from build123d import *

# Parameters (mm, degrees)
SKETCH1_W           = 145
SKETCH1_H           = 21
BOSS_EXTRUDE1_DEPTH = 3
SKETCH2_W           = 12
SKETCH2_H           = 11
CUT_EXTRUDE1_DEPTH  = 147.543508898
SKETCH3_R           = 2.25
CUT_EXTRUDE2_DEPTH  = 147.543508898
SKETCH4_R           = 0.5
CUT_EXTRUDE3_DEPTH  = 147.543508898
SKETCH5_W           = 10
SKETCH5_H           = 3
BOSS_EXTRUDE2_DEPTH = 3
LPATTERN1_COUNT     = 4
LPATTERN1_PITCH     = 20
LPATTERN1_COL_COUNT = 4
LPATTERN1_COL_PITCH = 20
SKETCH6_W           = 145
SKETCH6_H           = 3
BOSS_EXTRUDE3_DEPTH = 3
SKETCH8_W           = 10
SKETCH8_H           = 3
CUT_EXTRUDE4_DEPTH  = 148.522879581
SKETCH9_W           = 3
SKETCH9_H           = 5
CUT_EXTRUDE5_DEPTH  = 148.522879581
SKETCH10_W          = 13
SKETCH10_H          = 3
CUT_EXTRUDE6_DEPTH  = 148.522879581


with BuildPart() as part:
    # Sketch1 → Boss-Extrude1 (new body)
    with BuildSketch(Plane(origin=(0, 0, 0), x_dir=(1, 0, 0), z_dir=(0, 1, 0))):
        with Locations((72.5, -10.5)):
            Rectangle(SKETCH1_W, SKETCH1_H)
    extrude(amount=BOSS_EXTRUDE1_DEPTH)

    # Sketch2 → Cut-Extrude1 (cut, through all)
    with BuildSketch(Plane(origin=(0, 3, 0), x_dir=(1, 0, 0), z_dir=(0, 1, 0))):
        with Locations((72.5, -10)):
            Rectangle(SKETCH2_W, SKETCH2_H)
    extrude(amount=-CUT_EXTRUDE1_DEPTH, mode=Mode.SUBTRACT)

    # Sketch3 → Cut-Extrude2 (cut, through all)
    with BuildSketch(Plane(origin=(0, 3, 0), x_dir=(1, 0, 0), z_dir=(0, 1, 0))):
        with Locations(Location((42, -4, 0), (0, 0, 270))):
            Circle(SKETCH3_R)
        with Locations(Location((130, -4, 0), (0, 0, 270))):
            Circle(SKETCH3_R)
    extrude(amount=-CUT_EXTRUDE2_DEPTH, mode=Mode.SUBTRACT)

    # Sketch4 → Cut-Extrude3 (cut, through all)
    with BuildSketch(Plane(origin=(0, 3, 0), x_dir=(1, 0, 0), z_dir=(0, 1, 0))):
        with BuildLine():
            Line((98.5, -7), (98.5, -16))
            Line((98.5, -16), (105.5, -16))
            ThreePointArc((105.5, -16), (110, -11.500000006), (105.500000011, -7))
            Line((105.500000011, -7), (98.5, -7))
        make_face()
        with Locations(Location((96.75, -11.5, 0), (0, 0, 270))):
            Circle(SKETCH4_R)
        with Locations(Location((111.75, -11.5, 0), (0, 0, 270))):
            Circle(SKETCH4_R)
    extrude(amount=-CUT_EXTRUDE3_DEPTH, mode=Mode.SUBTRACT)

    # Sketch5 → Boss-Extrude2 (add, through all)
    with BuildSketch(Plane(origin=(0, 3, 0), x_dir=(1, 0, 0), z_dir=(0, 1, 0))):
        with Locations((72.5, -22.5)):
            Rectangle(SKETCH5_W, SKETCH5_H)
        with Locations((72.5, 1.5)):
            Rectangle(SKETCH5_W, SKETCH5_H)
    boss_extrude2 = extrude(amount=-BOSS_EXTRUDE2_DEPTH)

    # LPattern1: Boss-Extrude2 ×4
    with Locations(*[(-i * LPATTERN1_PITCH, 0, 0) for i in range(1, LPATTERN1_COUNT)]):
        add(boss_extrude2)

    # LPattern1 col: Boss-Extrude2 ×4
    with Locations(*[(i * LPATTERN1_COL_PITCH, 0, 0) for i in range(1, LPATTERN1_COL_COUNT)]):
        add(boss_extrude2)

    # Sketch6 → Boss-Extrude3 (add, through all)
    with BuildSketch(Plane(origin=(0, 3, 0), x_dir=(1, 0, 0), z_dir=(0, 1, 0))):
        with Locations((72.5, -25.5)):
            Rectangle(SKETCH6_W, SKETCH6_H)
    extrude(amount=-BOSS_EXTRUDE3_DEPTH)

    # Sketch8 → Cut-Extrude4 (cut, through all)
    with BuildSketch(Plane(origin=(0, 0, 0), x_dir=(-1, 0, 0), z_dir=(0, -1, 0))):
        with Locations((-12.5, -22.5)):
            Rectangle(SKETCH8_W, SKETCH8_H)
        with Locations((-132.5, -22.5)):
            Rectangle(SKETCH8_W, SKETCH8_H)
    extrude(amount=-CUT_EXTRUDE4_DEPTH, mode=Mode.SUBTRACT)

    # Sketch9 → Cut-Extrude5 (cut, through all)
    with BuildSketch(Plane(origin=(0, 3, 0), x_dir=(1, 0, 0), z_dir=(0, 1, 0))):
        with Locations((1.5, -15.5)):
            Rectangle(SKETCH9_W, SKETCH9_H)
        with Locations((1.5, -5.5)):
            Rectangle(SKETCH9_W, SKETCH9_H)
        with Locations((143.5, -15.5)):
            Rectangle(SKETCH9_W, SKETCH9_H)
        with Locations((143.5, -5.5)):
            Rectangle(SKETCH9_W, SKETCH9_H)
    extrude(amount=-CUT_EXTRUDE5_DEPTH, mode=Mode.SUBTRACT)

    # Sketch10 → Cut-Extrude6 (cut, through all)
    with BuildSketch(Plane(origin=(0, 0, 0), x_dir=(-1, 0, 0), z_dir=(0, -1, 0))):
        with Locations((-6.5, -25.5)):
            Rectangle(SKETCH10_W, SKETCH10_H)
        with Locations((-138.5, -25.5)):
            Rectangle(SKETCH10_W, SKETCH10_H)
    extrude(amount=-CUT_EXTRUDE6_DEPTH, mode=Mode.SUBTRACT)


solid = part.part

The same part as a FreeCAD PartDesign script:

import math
import FreeCAD as App
import Part
import Sketcher
from FreeCAD import Vector
Q = App.Units.Quantity

doc = App.newDocument("Part")
body = doc.addObject("PartDesign::Body", "Body")

# Sketch on XZ plane
sketch1 = body.newObject("Sketcher::SketchObject", "Sketch")
sketch1.AttachmentSupport = (doc.getObject("XZ_Plane"), [""])
sketch1.MapMode = "FlatFace"
sketch1.addGeometry([
    Part.LineSegment(Vector(0, 0, 0), Vector(0, 21, 0)),
    Part.LineSegment(Vector(0, 21, 0), Vector(145, 21, 0)),
    Part.LineSegment(Vector(145, 21, 0), Vector(145, 0, 0)),
    Part.LineSegment(Vector(145, 0, 0), Vector(0, 0, 0)),
], False)
sketch1.addConstraint([
    Sketcher.Constraint("Coincident", 0, 2, 1, 1),
    Sketcher.Constraint("Coincident", 1, 2, 2, 1),
    Sketcher.Constraint("Coincident", 2, 2, 3, 1),
    Sketcher.Constraint("Coincident", 3, 2, 0, 1),
    Sketcher.Constraint("Vertical", 0),
    Sketcher.Constraint("Horizontal", 1),
    Sketcher.Constraint("Vertical", 2),
    Sketcher.Constraint("Horizontal", 3),
    Sketcher.Constraint("Coincident", 3, 2, -1, 1),
    Sketcher.Constraint("DistanceX", 1, 1, 1, 2, Q("145 mm")),
    Sketcher.Constraint("DistanceY", 0, 1, 0, 2, Q("21 mm")),
])
pad1 = body.newObject("PartDesign::Pad", "Pad")
pad1.Profile = sketch1
pad1.Length = 3
pad1.Reversed = True

# Sketch on XZ plane
sketch2 = body.newObject("Sketcher::SketchObject", "Sketch001")
sketch2.AttachmentSupport = (doc.getObject("XZ_Plane"), [""])
sketch2.MapMode = "FlatFace"
sketch2.AttachmentOffset = App.Placement(Vector(0, 0, -3), App.Rotation())
sketch2.addGeometry([
    Part.LineSegment(Vector(66, 4, 0), Vector(66, 16, 0)),
    Part.LineSegment(Vector(66, 16, 0), Vector(78, 16, 0)),
    Part.LineSegment(Vector(78, 16, 0), Vector(78, 4, 0)),
    Part.LineSegment(Vector(78, 4, 0), Vector(66, 4, 0)),
], False)
sketch2.addConstraint([
    Sketcher.Constraint("Coincident", 0, 2, 1, 1),
    Sketcher.Constraint("Coincident", 1, 2, 2, 1),
    Sketcher.Constraint("Coincident", 2, 2, 3, 1),
    Sketcher.Constraint("Coincident", 3, 2, 0, 1),
    Sketcher.Constraint("Vertical", 0),
    Sketcher.Constraint("Horizontal", 1),
    Sketcher.Constraint("Vertical", 2),
    Sketcher.Constraint("Horizontal", 3),
    Sketcher.Constraint("DistanceX", 1, 1, 1, 2, Q("12 mm")),
    Sketcher.Constraint("DistanceY", 0, 1, 0, 2, Q("11 mm")),
    Sketcher.Constraint("DistanceX", -1, 1, 0, 2, Q("66.5 mm")),
    Sketcher.Constraint("DistanceY", -1, 1, 0, 2, Q("15.5 mm")),
])
pocket1 = body.newObject("PartDesign::Pocket", "Pocket")
pocket1.Profile = sketch2
pocket1.Type = "ThroughAll"
pocket1.Reversed = True

# Sketch on XZ plane
sketch3 = body.newObject("Sketcher::SketchObject", "Sketch002")
sketch3.AttachmentSupport = (doc.getObject("XZ_Plane"), [""])
sketch3.MapMode = "FlatFace"
sketch3.AttachmentOffset = App.Placement(Vector(0, 0, -3), App.Rotation())
sketch3.addGeometry([
    Part.Circle(Vector(42, 4, 0), Vector(0, 0, 1), 2.2),
    Part.Circle(Vector(130, 4, 0), Vector(0, 0, 1), 2.2),
], False)
sketch3.addConstraint([
    Sketcher.Constraint("Equal", 0, 1),
    Sketcher.Constraint("Horizontal", 0, 3, 1, 3),
    Sketcher.Constraint("Diameter", 0, Q("4.5 mm")),
    Sketcher.Constraint("DistanceX", -1, 1, 0, 3, Q("42 mm")),
    Sketcher.Constraint("DistanceY", -1, 1, 0, 3, Q("4 mm")),
    Sketcher.Constraint("DistanceX", -1, 1, 1, 3, Q("130 mm")),
])
pocket2 = body.newObject("PartDesign::Pocket", "Pocket001")
pocket2.Profile = sketch3
pocket2.Type = "ThroughAll"
pocket2.Reversed = True

# Sketch on XZ plane
sketch4 = body.newObject("Sketcher::SketchObject", "Sketch003")
sketch4.AttachmentSupport = (doc.getObject("XZ_Plane"), [""])
sketch4.MapMode = "FlatFace"
sketch4.AttachmentOffset = App.Placement(Vector(0, 0, -3), App.Rotation())
sketch4.addGeometry([
    Part.LineSegment(Vector(98.5, 7, 0), Vector(98.5, 16, 0)),  # 0
    Part.LineSegment(Vector(98.5, 16, 0), Vector(105.5, 16, 0)),  # 1
    Part.ArcOfCircle(Part.Circle(Vector(105.5, 11.5, 0), Vector(0, 0, 1), 4.5), math.radians(-90), math.radians(90)),  # 2
    Part.LineSegment(Vector(105.5, 7, 0), Vector(98.5, 7, 0)),  # 3
    Part.Circle(Vector(96.8, 11.5, 0), Vector(0, 0, 1), 0.5),  # 4
    Part.Circle(Vector(111.8, 11.5, 0), Vector(0, 0, 1), 0.5),  # 5
], False)
sketch4.addConstraint([
    Sketcher.Constraint("Coincident", 0, 2, 1, 1),
    Sketcher.Constraint("Tangent", 1, 2, 2, 2),
    Sketcher.Constraint("Tangent", 2, 1, 3, 1),
    Sketcher.Constraint("Coincident", 3, 2, 0, 1),
    Sketcher.Constraint("Vertical", 0),
    Sketcher.Constraint("Horizontal", 1),
    Sketcher.Constraint("Horizontal", 3),
    Sketcher.Constraint("Equal", 4, 5),
    Sketcher.Constraint("Horizontal", 2, 3, 4, 3),
    Sketcher.Constraint("Horizontal", 4, 3, 5, 3),
    Sketcher.Constraint("Diameter", 4, Q("1 mm")),
    Sketcher.Constraint("Radius", 2, Q("4.5 mm")),
    Sketcher.Constraint("DistanceX", 1, 1, 1, 2, Q("7 mm")),
    Sketcher.Constraint("DistanceY", -1, 1, 0, 2, Q("16 mm")),
    Sketcher.Constraint("DistanceX", 4, 3, 5, 3, Q("15 mm")),
    Sketcher.Constraint("DistanceX", -1, 1, 2, 3, Q("105.5 mm")),
    Sketcher.Constraint("DistanceX", -1, 1, 4, 3, Q("96.75 mm")),
])
pocket3 = body.newObject("PartDesign::Pocket", "Pocket002")
pocket3.Profile = sketch4
pocket3.Type = "ThroughAll"
pocket3.Reversed = True

# Sketch on XZ plane
sketch5 = body.newObject("Sketcher::SketchObject", "Sketch004")
sketch5.AttachmentSupport = (doc.getObject("XZ_Plane"), [""])
sketch5.MapMode = "FlatFace"
sketch5.AttachmentOffset = App.Placement(Vector(0, 0, -3), App.Rotation())
sketch5.addGeometry([
    Part.LineSegment(Vector(67.5, 21, 0), Vector(67.5, 24, 0)),  # 0
    Part.LineSegment(Vector(67.5, 24, 0), Vector(77.5, 24, 0)),  # 1
    Part.LineSegment(Vector(77.5, 24, 0), Vector(77.5, 21, 0)),  # 2
    Part.LineSegment(Vector(77.5, 21, 0), Vector(67.5, 21, 0)),  # 3
    Part.LineSegment(Vector(67.5, -3, 0), Vector(67.5, 0, 0)),  # 4
    Part.LineSegment(Vector(67.5, 0, 0), Vector(77.5, 0, 0)),  # 5
    Part.LineSegment(Vector(77.5, 0, 0), Vector(77.5, -3, 0)),  # 6
    Part.LineSegment(Vector(77.5, -3, 0), Vector(67.5, -3, 0)),  # 7
], False)
sketch5.addConstraint([
    Sketcher.Constraint("Coincident", 0, 2, 1, 1),
    Sketcher.Constraint("Coincident", 1, 2, 2, 1),
    Sketcher.Constraint("Coincident", 2, 2, 3, 1),
    Sketcher.Constraint("Coincident", 3, 2, 0, 1),
    Sketcher.Constraint("Coincident", 4, 2, 5, 1),
    Sketcher.Constraint("Coincident", 5, 2, 6, 1),
    Sketcher.Constraint("Coincident", 6, 2, 7, 1),
    Sketcher.Constraint("Coincident", 7, 2, 4, 1),
    Sketcher.Constraint("Vertical", 0),
    Sketcher.Constraint("Horizontal", 1),
    Sketcher.Constraint("Vertical", 2),
    Sketcher.Constraint("Horizontal", 3),
    Sketcher.Constraint("Vertical", 4),
    Sketcher.Constraint("Horizontal", 5),
    Sketcher.Constraint("Vertical", 6),
    Sketcher.Constraint("Horizontal", 7),
    Sketcher.Constraint("PointOnObject", 4, 2, -1),
    Sketcher.Constraint("Vertical", 3, 2, 4, 2),
    Sketcher.Constraint("Vertical", 2, 2, 5, 2),
    Sketcher.Constraint("Equal", 2, 4),
    Sketcher.Constraint("DistanceX", 1, 1, 1, 2, Q("10 mm")),
    Sketcher.Constraint("DistanceY", 0, 1, 0, 2, Q("3 mm")),
    Sketcher.Constraint("DistanceY", -1, 1, 0, 2, Q("24 mm")),
    Sketcher.Constraint("DistanceX", -1, 1, 0, 2, Q("67.5 mm")),
])
pad2 = body.newObject("PartDesign::Pad", "Pad001")
pad2.Profile = sketch5
pad2.Length = 3
doc.recompute()

linearpattern = body.newObject("PartDesign::LinearPattern", "LinearPattern")
linearpattern.Originals = [pad2]
linearpattern.Direction = (doc.getObject("X_Axis"), [""])
linearpattern.Mode = "offset"
linearpattern.Offset = 20
linearpattern.Occurrences = 4
linearpattern.Reversed = True
body.Tip = linearpattern
doc.recompute()

linearpattern2 = body.newObject("PartDesign::LinearPattern", "LinearPattern001")
linearpattern2.Originals = [pad2]
linearpattern2.Direction = (doc.getObject("X_Axis"), [""])
linearpattern2.Mode = "offset"
linearpattern2.Offset = 20
linearpattern2.Occurrences = 4
body.Tip = linearpattern2

# Sketch on XZ plane
sketch6 = body.newObject("Sketcher::SketchObject", "Sketch005")
sketch6.AttachmentSupport = (doc.getObject("XZ_Plane"), [""])
sketch6.MapMode = "FlatFace"
sketch6.AttachmentOffset = App.Placement(Vector(0, 0, -3), App.Rotation())
sketch6.addGeometry([
    Part.LineSegment(Vector(0, 24, 0), Vector(0, 27, 0)),
    Part.LineSegment(Vector(0, 27, 0), Vector(145, 27, 0)),
    Part.LineSegment(Vector(145, 27, 0), Vector(145, 24, 0)),
    Part.LineSegment(Vector(145, 24, 0), Vector(0, 24, 0)),
], False)
sketch6.addConstraint([
    Sketcher.Constraint("Coincident", 0, 2, 1, 1),
    Sketcher.Constraint("Coincident", 1, 2, 2, 1),
    Sketcher.Constraint("Coincident", 2, 2, 3, 1),
    Sketcher.Constraint("Coincident", 3, 2, 0, 1),
    Sketcher.Constraint("Vertical", 0),
    Sketcher.Constraint("Horizontal", 1),
    Sketcher.Constraint("Vertical", 2),
    Sketcher.Constraint("Horizontal", 3),
    Sketcher.Constraint("PointOnObject", 0, 2, -2),
    Sketcher.Constraint("DistanceX", 1, 1, 1, 2, Q("145 mm")),
    Sketcher.Constraint("DistanceY", 0, 1, 0, 2, Q("3 mm")),
    Sketcher.Constraint("DistanceY", -1, 1, 0, 2, Q("27 mm")),
])
pad3 = body.newObject("PartDesign::Pad", "Pad002")
pad3.Profile = sketch6
pad3.Length = 3

# Sketch on XZ plane
sketch7 = body.newObject("Sketcher::SketchObject", "Sketch006")
sketch7.AttachmentSupport = (doc.getObject("XZ_Plane"), [""])
sketch7.MapMode = "FlatFace"
sketch7.addGeometry([
    Part.LineSegment(Vector(17.5, 21, 0), Vector(17.5, 24, 0)),  # 0
    Part.LineSegment(Vector(17.5, 24, 0), Vector(7.5, 24, 0)),  # 1
    Part.LineSegment(Vector(7.5, 24, 0), Vector(7.5, 21, 0)),  # 2
    Part.LineSegment(Vector(7.5, 21, 0), Vector(17.5, 21, 0)),  # 3
    Part.LineSegment(Vector(137.5, 21, 0), Vector(137.5, 24, 0)),  # 4
    Part.LineSegment(Vector(137.5, 24, 0), Vector(127.5, 24, 0)),  # 5
    Part.LineSegment(Vector(127.5, 24, 0), Vector(127.5, 21, 0)),  # 6
    Part.LineSegment(Vector(127.5, 21, 0), Vector(137.5, 21, 0)),  # 7
], False)
sketch7.addConstraint([
    Sketcher.Constraint("Coincident", 0, 2, 1, 1),
    Sketcher.Constraint("Coincident", 1, 2, 2, 1),
    Sketcher.Constraint("Coincident", 2, 2, 3, 1),
    Sketcher.Constraint("Coincident", 3, 2, 0, 1),
    Sketcher.Constraint("Coincident", 4, 2, 5, 1),
    Sketcher.Constraint("Coincident", 5, 2, 6, 1),
    Sketcher.Constraint("Coincident", 6, 2, 7, 1),
    Sketcher.Constraint("Coincident", 7, 2, 4, 1),
    Sketcher.Constraint("Vertical", 0),
    Sketcher.Constraint("Horizontal", 1),
    Sketcher.Constraint("Vertical", 2),
    Sketcher.Constraint("Horizontal", 3),
    Sketcher.Constraint("Vertical", 4),
    Sketcher.Constraint("Horizontal", 5),
    Sketcher.Constraint("Vertical", 6),
    Sketcher.Constraint("Horizontal", 7),
    Sketcher.Constraint("Horizontal", 1, 2, 4, 2),
    Sketcher.Constraint("Horizontal", 3, 2, 6, 2),
    Sketcher.Constraint("Equal", 3, 5),
    Sketcher.Constraint("DistanceX", 1, 2, 1, 1, Q("10 mm")),
    Sketcher.Constraint("DistanceY", 0, 1, 0, 2, Q("3 mm")),
    Sketcher.Constraint("DistanceY", -1, 1, 0, 2, Q("24 mm")),
    Sketcher.Constraint("DistanceX", 0, 2, 4, 2, Q("120 mm")),
    Sketcher.Constraint("DistanceX", -1, 1, 0, 2, Q("17.5 mm")),
])
pocket4 = body.newObject("PartDesign::Pocket", "Pocket003")
pocket4.Profile = sketch7
pocket4.Type = "ThroughAll"

# Sketch on XZ plane
sketch8 = body.newObject("Sketcher::SketchObject", "Sketch007")
sketch8.AttachmentSupport = (doc.getObject("XZ_Plane"), [""])
sketch8.MapMode = "FlatFace"
sketch8.AttachmentOffset = App.Placement(Vector(0, 0, -3), App.Rotation())
sketch8.addGeometry([
    Part.LineSegment(Vector(0, 13, 0), Vector(0, 18, 0)),  # 0
    Part.LineSegment(Vector(0, 18, 0), Vector(3, 18, 0)),  # 1
    Part.LineSegment(Vector(3, 18, 0), Vector(3, 13, 0)),  # 2
    Part.LineSegment(Vector(3, 13, 0), Vector(0, 13, 0)),  # 3
    Part.LineSegment(Vector(0, 3, 0), Vector(0, 8, 0)),  # 4
    Part.LineSegment(Vector(0, 8, 0), Vector(3, 8, 0)),  # 5
    Part.LineSegment(Vector(3, 8, 0), Vector(3, 3, 0)),  # 6
    Part.LineSegment(Vector(3, 3, 0), Vector(0, 3, 0)),  # 7
    Part.LineSegment(Vector(142, 13, 0), Vector(142, 18, 0)),  # 8
    Part.LineSegment(Vector(142, 18, 0), Vector(145, 18, 0)),  # 9
    Part.LineSegment(Vector(145, 18, 0), Vector(145, 13, 0)),  # 10
    Part.LineSegment(Vector(145, 13, 0), Vector(142, 13, 0)),  # 11
    Part.LineSegment(Vector(142, 3, 0), Vector(142, 8, 0)),  # 12
    Part.LineSegment(Vector(142, 8, 0), Vector(145, 8, 0)),  # 13
    Part.LineSegment(Vector(145, 8, 0), Vector(145, 3, 0)),  # 14
    Part.LineSegment(Vector(145, 3, 0), Vector(142, 3, 0)),  # 15
], False)
sketch8.addConstraint([
    Sketcher.Constraint("Coincident", 0, 2, 1, 1),
    Sketcher.Constraint("Coincident", 1, 2, 2, 1),
    Sketcher.Constraint("Coincident", 2, 2, 3, 1),
    Sketcher.Constraint("Coincident", 3, 2, 0, 1),
    Sketcher.Constraint("Coincident", 4, 2, 5, 1),
    Sketcher.Constraint("Coincident", 5, 2, 6, 1),
    Sketcher.Constraint("Coincident", 6, 2, 7, 1),
    Sketcher.Constraint("Coincident", 7, 2, 4, 1),
    Sketcher.Constraint("Coincident", 8, 2, 9, 1),
    Sketcher.Constraint("Coincident", 9, 2, 10, 1),
    Sketcher.Constraint("Coincident", 10, 2, 11, 1),
    Sketcher.Constraint("Coincident", 11, 2, 8, 1),
    Sketcher.Constraint("Coincident", 12, 2, 13, 1),
    Sketcher.Constraint("Coincident", 13, 2, 14, 1),
    Sketcher.Constraint("Coincident", 14, 2, 15, 1),
    Sketcher.Constraint("Coincident", 15, 2, 12, 1),
    Sketcher.Constraint("Vertical", 0),
    Sketcher.Constraint("Horizontal", 1),
    Sketcher.Constraint("Vertical", 2),
    Sketcher.Constraint("Horizontal", 3),
    Sketcher.Constraint("Vertical", 4),
    Sketcher.Constraint("Horizontal", 5),
    Sketcher.Constraint("Vertical", 6),
    Sketcher.Constraint("Horizontal", 7),
    Sketcher.Constraint("Vertical", 8),
    Sketcher.Constraint("Horizontal", 9),
    Sketcher.Constraint("Vertical", 10),
    Sketcher.Constraint("Horizontal", 11),
    Sketcher.Constraint("Vertical", 12),
    Sketcher.Constraint("Horizontal", 13),
    Sketcher.Constraint("Vertical", 14),
    Sketcher.Constraint("Horizontal", 15),
    Sketcher.Constraint("PointOnObject", 0, 2, -2),
    Sketcher.Constraint("PointOnObject", 4, 2, -2),
    Sketcher.Constraint("Horizontal", 1, 2, 8, 2),
    Sketcher.Constraint("Horizontal", 3, 2, 10, 2),
    Sketcher.Constraint("Horizontal", 5, 2, 12, 2),
    Sketcher.Constraint("Horizontal", 7, 2, 14, 2),
    Sketcher.Constraint("Vertical", 2, 2, 5, 2),
    Sketcher.Constraint("Vertical", 11, 2, 12, 2),
    Sketcher.Constraint("Vertical", 10, 2, 13, 2),
    Sketcher.Constraint("Equal", 7, 9),
    Sketcher.Constraint("Equal", 2, 4),
    Sketcher.Constraint("DistanceX", 1, 1, 1, 2, Q("3 mm")),
    Sketcher.Constraint("DistanceY", 0, 1, 0, 2, Q("5 mm")),
    Sketcher.Constraint("DistanceY", -1, 1, 0, 2, Q("18 mm")),
    Sketcher.Constraint("DistanceY", -1, 1, 4, 2, Q("8 mm")),
    Sketcher.Constraint("DistanceX", -1, 1, 8, 2, Q("142 mm")),
])
pocket5 = body.newObject("PartDesign::Pocket", "Pocket004")
pocket5.Profile = sketch8
pocket5.Type = "ThroughAll"
pocket5.Reversed = True

# Sketch on XZ plane
sketch9 = body.newObject("Sketcher::SketchObject", "Sketch008")
sketch9.AttachmentSupport = (doc.getObject("XZ_Plane"), [""])
sketch9.MapMode = "FlatFace"
sketch9.addGeometry([
    Part.LineSegment(Vector(13, 24, 0), Vector(13, 27, 0)),  # 0
    Part.LineSegment(Vector(13, 27, 0), Vector(0, 27, 0)),  # 1
    Part.LineSegment(Vector(0, 27, 0), Vector(0, 24, 0)),  # 2
    Part.LineSegment(Vector(0, 24, 0), Vector(13, 24, 0)),  # 3
    Part.LineSegment(Vector(145, 24, 0), Vector(145, 27, 0)),  # 4
    Part.LineSegment(Vector(145, 27, 0), Vector(132, 27, 0)),  # 5
    Part.LineSegment(Vector(132, 27, 0), Vector(132, 24, 0)),  # 6
    Part.LineSegment(Vector(132, 24, 0), Vector(145, 24, 0)),  # 7
], False)
sketch9.addConstraint([
    Sketcher.Constraint("Coincident", 0, 2, 1, 1),
    Sketcher.Constraint("Coincident", 1, 2, 2, 1),
    Sketcher.Constraint("Coincident", 2, 2, 3, 1),
    Sketcher.Constraint("Coincident", 3, 2, 0, 1),
    Sketcher.Constraint("Coincident", 4, 2, 5, 1),
    Sketcher.Constraint("Coincident", 5, 2, 6, 1),
    Sketcher.Constraint("Coincident", 6, 2, 7, 1),
    Sketcher.Constraint("Coincident", 7, 2, 4, 1),
    Sketcher.Constraint("Vertical", 0),
    Sketcher.Constraint("Horizontal", 1),
    Sketcher.Constraint("Vertical", 2),
    Sketcher.Constraint("Horizontal", 3),
    Sketcher.Constraint("Vertical", 4),
    Sketcher.Constraint("Horizontal", 5),
    Sketcher.Constraint("Vertical", 6),
    Sketcher.Constraint("Horizontal", 7),
    Sketcher.Constraint("PointOnObject", 1, 2, -2),
    Sketcher.Constraint("Horizontal", 1, 2, 4, 2),
    Sketcher.Constraint("Horizontal", 3, 2, 6, 2),
    Sketcher.Constraint("Equal", 3, 5),
    Sketcher.Constraint("DistanceX", 1, 2, 1, 1, Q("13 mm")),
    Sketcher.Constraint("DistanceY", 0, 1, 0, 2, Q("3 mm")),
    Sketcher.Constraint("DistanceY", -1, 1, 0, 2, Q("27 mm")),
    Sketcher.Constraint("DistanceX", -1, 1, 4, 2, Q("145 mm")),
])
pocket6 = body.newObject("PartDesign::Pocket", "Pocket005")
pocket6.Profile = sketch9
pocket6.Type = "ThroughAll"

doc.recompute()
